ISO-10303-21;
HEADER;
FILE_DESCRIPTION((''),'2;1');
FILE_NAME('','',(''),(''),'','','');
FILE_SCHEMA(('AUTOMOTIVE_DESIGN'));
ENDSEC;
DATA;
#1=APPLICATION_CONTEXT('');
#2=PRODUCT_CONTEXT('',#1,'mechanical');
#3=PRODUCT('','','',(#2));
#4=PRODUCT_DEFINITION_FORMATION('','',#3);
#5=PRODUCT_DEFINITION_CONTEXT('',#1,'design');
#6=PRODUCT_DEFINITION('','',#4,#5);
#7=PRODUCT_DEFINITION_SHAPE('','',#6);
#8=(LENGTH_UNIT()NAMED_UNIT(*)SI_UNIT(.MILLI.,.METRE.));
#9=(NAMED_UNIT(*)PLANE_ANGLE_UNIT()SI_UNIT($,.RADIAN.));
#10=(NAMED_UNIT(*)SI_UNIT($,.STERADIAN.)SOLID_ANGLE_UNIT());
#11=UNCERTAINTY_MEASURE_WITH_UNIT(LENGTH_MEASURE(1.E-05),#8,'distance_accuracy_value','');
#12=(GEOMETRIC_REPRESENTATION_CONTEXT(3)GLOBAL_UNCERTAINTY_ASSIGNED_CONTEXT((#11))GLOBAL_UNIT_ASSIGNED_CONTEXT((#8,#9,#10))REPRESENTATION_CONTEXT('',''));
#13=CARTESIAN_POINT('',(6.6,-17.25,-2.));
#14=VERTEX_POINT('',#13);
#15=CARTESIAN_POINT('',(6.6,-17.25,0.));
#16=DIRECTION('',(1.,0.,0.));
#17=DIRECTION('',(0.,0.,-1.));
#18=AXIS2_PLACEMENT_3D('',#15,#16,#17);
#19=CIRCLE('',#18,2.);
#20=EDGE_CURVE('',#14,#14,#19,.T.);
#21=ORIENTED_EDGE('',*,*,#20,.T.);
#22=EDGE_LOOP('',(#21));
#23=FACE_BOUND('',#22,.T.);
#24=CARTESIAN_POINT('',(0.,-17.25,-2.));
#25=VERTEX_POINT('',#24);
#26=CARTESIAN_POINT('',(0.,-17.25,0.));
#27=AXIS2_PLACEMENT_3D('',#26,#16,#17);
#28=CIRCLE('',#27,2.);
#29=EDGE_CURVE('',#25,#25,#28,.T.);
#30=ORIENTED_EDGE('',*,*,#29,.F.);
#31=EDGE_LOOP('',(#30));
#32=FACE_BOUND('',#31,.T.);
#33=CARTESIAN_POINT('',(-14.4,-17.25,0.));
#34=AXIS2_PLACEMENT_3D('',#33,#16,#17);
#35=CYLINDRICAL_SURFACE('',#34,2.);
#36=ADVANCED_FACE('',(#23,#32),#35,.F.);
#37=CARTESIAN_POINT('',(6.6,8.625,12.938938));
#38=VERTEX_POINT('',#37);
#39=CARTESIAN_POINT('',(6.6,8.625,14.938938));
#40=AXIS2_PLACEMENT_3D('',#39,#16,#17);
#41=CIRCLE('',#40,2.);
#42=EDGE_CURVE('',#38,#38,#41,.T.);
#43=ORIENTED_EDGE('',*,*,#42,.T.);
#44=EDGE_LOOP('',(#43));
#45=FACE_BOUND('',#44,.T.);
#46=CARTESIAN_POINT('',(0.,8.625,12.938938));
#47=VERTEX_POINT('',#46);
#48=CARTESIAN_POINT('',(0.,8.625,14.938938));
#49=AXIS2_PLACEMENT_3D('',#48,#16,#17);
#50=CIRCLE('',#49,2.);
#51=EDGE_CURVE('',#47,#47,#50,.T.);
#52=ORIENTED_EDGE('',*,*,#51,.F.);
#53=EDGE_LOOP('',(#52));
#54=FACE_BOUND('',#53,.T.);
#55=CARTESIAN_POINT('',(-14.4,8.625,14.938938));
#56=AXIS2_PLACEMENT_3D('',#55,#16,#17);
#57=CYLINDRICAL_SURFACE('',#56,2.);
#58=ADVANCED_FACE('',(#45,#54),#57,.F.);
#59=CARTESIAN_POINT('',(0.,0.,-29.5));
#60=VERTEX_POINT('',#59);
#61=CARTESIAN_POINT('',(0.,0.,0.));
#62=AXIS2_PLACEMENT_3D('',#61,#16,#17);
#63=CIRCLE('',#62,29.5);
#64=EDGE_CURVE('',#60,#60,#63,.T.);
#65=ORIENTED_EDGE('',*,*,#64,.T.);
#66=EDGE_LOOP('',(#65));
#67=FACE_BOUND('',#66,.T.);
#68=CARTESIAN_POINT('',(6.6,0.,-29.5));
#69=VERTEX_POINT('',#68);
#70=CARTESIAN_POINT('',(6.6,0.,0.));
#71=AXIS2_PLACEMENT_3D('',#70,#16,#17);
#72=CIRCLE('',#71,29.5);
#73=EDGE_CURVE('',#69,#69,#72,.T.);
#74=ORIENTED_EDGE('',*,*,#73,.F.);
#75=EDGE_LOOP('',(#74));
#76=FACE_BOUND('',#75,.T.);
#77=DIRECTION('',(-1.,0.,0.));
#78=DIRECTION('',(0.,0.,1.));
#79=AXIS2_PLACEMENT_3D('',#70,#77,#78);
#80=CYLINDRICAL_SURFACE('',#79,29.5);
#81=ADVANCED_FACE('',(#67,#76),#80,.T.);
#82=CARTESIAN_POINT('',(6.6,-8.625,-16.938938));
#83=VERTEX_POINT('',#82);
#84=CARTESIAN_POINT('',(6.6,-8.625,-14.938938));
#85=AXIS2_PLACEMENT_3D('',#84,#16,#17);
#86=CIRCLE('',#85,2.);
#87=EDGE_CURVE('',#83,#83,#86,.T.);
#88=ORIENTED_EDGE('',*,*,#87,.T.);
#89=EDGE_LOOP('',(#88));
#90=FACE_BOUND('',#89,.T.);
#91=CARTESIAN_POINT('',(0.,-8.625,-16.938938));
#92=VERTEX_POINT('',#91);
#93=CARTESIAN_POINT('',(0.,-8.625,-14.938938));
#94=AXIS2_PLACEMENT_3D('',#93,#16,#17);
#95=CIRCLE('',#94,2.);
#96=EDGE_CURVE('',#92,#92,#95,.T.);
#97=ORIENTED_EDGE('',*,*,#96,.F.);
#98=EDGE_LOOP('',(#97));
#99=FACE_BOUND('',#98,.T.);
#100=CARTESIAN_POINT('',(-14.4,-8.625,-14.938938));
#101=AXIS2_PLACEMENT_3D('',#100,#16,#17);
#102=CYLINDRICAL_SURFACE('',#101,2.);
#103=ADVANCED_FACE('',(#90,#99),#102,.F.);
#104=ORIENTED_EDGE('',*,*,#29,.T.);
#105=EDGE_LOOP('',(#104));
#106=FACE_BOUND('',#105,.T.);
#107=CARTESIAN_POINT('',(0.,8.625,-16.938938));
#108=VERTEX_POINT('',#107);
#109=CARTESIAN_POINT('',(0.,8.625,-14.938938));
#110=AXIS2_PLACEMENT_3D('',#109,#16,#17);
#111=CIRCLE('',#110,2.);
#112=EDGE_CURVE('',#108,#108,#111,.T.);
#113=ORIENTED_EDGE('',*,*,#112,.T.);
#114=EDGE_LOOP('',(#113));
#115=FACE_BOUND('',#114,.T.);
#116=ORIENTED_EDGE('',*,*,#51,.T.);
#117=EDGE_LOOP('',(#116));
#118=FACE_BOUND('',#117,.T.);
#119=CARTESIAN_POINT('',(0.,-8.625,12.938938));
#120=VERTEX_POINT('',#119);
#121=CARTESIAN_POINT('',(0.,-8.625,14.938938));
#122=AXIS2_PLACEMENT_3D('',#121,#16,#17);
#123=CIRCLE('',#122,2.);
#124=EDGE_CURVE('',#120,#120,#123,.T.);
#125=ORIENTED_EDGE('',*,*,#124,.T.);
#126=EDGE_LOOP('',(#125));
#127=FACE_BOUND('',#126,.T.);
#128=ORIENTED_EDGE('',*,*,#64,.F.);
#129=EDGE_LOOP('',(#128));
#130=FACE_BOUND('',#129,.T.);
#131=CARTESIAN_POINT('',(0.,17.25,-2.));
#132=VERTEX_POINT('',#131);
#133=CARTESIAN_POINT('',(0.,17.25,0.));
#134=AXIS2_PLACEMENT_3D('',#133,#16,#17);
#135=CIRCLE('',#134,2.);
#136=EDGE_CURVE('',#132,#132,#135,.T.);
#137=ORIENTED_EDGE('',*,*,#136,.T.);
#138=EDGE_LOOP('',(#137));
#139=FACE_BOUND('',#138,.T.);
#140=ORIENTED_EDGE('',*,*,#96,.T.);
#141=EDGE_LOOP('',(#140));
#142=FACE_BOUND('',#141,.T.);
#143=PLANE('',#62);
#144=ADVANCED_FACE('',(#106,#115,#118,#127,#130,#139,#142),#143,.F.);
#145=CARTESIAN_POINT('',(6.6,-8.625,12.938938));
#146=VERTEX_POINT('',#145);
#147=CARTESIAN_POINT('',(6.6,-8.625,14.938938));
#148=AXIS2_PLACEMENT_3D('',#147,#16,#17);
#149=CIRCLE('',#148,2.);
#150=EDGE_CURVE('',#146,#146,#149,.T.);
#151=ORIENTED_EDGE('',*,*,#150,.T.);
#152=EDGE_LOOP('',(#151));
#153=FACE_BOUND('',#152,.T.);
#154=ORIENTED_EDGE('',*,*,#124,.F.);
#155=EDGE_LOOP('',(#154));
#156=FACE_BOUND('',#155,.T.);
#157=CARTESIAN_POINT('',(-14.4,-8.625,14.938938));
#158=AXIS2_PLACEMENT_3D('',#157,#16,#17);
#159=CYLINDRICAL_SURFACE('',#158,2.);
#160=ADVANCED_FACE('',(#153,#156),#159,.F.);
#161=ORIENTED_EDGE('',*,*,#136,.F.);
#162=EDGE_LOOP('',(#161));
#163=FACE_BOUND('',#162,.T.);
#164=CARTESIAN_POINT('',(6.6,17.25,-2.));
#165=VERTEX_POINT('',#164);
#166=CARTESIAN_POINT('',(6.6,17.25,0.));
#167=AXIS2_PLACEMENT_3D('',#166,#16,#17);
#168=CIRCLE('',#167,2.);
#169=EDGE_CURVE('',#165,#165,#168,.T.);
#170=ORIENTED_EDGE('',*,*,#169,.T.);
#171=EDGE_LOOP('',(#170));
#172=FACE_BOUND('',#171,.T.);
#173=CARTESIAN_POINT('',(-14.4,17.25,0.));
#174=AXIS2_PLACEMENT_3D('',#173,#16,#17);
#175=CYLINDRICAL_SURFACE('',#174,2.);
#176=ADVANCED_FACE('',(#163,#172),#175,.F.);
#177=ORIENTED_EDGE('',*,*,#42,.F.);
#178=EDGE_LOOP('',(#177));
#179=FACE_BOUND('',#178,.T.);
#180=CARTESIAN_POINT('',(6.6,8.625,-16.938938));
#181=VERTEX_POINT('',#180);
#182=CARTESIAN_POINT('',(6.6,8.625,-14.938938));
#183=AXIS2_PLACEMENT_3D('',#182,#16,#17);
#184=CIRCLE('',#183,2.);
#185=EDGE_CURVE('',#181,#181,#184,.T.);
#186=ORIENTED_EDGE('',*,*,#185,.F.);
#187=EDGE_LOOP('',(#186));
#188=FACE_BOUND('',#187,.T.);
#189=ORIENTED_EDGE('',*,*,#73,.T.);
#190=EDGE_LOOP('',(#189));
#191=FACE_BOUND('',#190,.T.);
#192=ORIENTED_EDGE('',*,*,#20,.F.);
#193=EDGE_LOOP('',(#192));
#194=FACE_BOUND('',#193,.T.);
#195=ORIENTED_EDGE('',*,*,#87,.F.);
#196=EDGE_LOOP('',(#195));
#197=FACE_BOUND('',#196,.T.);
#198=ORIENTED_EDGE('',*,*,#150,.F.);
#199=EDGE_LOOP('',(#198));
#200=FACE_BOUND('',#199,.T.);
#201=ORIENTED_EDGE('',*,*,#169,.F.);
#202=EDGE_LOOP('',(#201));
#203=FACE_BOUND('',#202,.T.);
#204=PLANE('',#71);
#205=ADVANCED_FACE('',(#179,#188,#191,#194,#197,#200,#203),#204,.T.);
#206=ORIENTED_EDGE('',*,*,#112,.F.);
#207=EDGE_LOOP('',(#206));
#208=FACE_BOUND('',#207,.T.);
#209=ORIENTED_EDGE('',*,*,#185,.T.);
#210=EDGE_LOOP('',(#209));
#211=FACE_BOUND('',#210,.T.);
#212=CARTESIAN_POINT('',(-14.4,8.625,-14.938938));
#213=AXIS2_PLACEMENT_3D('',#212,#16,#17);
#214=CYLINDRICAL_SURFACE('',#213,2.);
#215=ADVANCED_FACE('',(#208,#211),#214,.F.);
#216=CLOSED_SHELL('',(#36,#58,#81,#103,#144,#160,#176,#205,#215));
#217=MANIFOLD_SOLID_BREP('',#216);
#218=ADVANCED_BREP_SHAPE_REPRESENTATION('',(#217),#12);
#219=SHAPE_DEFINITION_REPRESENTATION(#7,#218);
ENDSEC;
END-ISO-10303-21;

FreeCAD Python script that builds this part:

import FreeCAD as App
import Part
import Sketcher
from FreeCAD import Vector

doc = App.newDocument("Part")
body = doc.addObject("PartDesign::Body", "Body")

sketch1 = body.newObject("Sketcher::SketchObject", "Sketch")
sketch1.AttachmentSupport = (doc.getObject("YZ_Plane"), [""])
sketch1.MapMode = "FlatFace"
sketch1.addGeometry(Part.Circle(Vector(0, 0, 0), Vector(0, 0, 1), 30), False)
sketch1.addConstraint(Sketcher.Constraint("Coincident", 0, 3, -1, 1))
sketch1.addConstraint(Sketcher.Constraint("Diameter", 0, 59.0))
pad1 = body.newObject("PartDesign::Pad", "Pad")
pad1.Profile = sketch1
pad1.Length = 6.6

sketch2 = body.newObject("Sketcher::SketchObject", "Sketch001")
sketch2.AttachmentSupport = (doc.getObject("YZ_Plane"), [""])
sketch2.MapMode = "FlatFace"
sketch2.AttachmentOffset = App.Placement(Vector(0, 0, 6.6), App.Rotation())
sketch2.addGeometry(Part.Circle(Vector(17.2, 0, 0), Vector(0, 0, 1), 2), False)
sketch2.addGeometry(Part.Circle(Vector(8.6, -14.9, 0), Vector(0, 0, 1), 2), False)
sketch2.addGeometry(Part.Circle(Vector(-8.6, -14.9, 0), Vector(0, 0, 1), 2), False)
sketch2.addGeometry(Part.Circle(Vector(-17.2, 0, 0), Vector(0, 0, 1), 2), False)
sketch2.addGeometry(Part.Circle(Vector(-8.6, 14.9, 0), Vector(0, 0, 1), 2), False)
sketch2.addGeometry(Part.Circle(Vector(8.6, 14.9, 0), Vector(0, 0, 1), 2), False)
sketch2.addConstraint(Sketcher.Constraint("Equal", 0, 1))
sketch2.addConstraint(Sketcher.Constraint("Equal", 1, 2))
sketch2.addConstraint(Sketcher.Constraint("Equal", 2, 3))
sketch2.addConstraint(Sketcher.Constraint("Equal", 3, 4))
sketch2.addConstraint(Sketcher.Constraint("Equal", 4, 5))
sketch2.addConstraint(Sketcher.Constraint("Symmetric", 0, 3, 3, 3, -1, 1))
sketch2.addConstraint(Sketcher.Constraint("Symmetric", 1, 3, 4, 3, -1, 1))
sketch2.addConstraint(Sketcher.Constraint("Symmetric", 2, 3, 5, 3, -1, 1))
sketch2.addConstraint(Sketcher.Constraint("Symmetric", 1, 3, 2, 3, -2))
sketch2.addConstraint(Sketcher.Constraint("PointOnObject", 0, 3, -1))
sketch2.addConstraint(Sketcher.Constraint("Diameter", 0, 4.0))
sketch2.addConstraint(Sketcher.Constraint("DistanceX", 3, 3, 0, 3, 34.5))
sketch2.addConstraint(Sketcher.Constraint("DistanceX", 2, 3, 1, 3, 17.25))
sketch2.addConstraint(Sketcher.Constraint("DistanceY", 1, 3, -1, 1, 14.938938))
pocket1 = body.newObject("PartDesign::Pocket", "Pocket")
pocket1.Profile = sketch2
pocket1.Length = 21

doc.recompute()
